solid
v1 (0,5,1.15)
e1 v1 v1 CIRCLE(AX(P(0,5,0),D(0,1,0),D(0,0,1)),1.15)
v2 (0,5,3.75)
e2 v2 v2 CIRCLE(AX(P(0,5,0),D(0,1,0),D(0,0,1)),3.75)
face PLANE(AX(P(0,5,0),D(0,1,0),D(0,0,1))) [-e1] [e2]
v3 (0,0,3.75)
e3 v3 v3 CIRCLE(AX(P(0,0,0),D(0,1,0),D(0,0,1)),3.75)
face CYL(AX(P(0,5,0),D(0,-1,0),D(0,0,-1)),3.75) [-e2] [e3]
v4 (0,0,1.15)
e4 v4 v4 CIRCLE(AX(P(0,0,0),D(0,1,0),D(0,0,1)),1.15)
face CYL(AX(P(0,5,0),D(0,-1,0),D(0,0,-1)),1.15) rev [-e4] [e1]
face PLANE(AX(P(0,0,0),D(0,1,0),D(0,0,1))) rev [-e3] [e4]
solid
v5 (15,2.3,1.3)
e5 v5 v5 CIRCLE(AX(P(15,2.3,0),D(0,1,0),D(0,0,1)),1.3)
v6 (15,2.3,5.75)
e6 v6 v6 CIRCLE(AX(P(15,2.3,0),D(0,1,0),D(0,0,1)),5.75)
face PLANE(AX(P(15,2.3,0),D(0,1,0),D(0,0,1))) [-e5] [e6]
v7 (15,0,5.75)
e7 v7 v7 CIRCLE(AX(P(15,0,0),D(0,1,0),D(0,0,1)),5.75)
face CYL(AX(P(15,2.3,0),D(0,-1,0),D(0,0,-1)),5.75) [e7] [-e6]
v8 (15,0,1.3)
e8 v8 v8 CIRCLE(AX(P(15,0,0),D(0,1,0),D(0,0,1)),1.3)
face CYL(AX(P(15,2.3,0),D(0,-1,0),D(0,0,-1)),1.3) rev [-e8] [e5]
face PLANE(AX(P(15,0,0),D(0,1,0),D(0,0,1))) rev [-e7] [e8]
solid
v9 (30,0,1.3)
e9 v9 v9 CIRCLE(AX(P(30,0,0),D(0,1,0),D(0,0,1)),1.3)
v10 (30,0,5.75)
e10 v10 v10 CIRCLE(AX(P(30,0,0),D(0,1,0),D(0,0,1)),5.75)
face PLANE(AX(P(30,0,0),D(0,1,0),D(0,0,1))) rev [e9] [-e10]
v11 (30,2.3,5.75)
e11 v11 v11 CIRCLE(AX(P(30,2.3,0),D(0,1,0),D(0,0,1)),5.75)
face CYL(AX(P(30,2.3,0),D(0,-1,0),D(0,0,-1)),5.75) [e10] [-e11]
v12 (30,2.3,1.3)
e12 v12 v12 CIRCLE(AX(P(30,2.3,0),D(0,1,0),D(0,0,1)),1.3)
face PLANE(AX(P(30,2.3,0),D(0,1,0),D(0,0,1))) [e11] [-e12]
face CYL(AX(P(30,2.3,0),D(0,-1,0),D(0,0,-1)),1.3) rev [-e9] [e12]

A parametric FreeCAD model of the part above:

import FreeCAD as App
import Part
import Sketcher
Q = App.Units.Quantity

doc = App.newDocument("Part")
params = doc.addObject("Spreadsheet::Sheet", "Params")
for row, (alias, value) in enumerate([
    ("sketch1_diameter", "7.5 mm"),
    ("sketch1_diameter2", "2.3 mm"),
    ("pad1_length", "5 mm"),
    ("sketch2_diameter", "11.5 mm"),
    ("sketch2_diameter2", "2.6 mm"),
    ("pad2_length", "2.3 mm"),
    ("sketch3_diameter", "11.5 mm"),
    ("sketch3_diameter2", "2.6 mm"),
    ("pad3_length", "2.3 mm"),
], start=1):
    params.set(f"A{row}", alias)
    params.set(f"B{row}", "=" + value)
    params.setAlias(f"B{row}", alias)

body = doc.addObject("PartDesign::Body", "Body")

sketch1 = doc.addObject("Sketcher::SketchObject", "Sketch")
body.addObject(sketch1)
sketch1.AttachmentSupport = (doc.XZ_Plane, [""])
sketch1.MapMode = "FlatFace"
sketch1.addGeometry([
    Part.Circle(App.Vector(0, 0, 0), App.Vector(0, 0, 1), 3.75),
    Part.Circle(App.Vector(0, 0, 0), App.Vector(0, 0, 1), 1.15),
], False)
sketch1.addConstraint([
    Sketcher.Constraint("Coincident", 0, 3, -1, 1),
    Sketcher.Constraint("Coincident", 1, 3, -1, 1),
    Sketcher.Constraint("Diameter", 0, Q("7.5 mm")),
    Sketcher.Constraint("Diameter", 1, Q("2.3 mm")),
])
sketch1.setExpression("Constraints[2]", "Params.sketch1_diameter")
sketch1.setExpression("Constraints[3]", "Params.sketch1_diameter2")
pad1 = doc.addObject("PartDesign::Pad", "Pad")
body.addObject(pad1)
pad1.Profile = sketch1
pad1.setExpression("Length", "Params.pad1_length")
pad1.Reversed = True
body2 = doc.addObject("PartDesign::Body", "Body001")

sketch2 = doc.addObject("Sketcher::SketchObject", "Sketch001")
body2.addObject(sketch2)
sketch2.AttachmentSupport = (doc.getObject("XZ_Plane001"), [""])
sketch2.MapMode = "FlatFace"
sketch2.addGeometry([
    Part.Circle(App.Vector(15, 0, 0), App.Vector(0, 0, 1), 5.75),
    Part.Circle(App.Vector(15, 0, 0), App.Vector(0, 0, 1), 1.3),
], False)
sketch2.addConstraint([
    Sketcher.Constraint("Coincident", 1, 3, 0, 3),
    Sketcher.Constraint("PointOnObject", 0, 3, -1),
    Sketcher.Constraint("Diameter", 0, Q("11.5 mm")),
    Sketcher.Constraint("Diameter", 1, Q("2.6 mm")),
    Sketcher.Constraint("DistanceX", -1, 1, 0, 3, Q("15 mm")),
])
sketch2.setExpression("Constraints[2]", "Params.sketch2_diameter")
sketch2.setExpression("Constraints[3]", "Params.sketch2_diameter2")
pad2 = doc.addObject("PartDesign::Pad", "Pad001")
body2.addObject(pad2)
pad2.Profile = sketch2
pad2.setExpression("Length", "Params.pad2_length")
pad2.Reversed = True
body3 = doc.addObject("PartDesign::Body", "Body002")

sketch3 = doc.addObject("Sketcher::SketchObject", "Sketch002")
body3.addObject(sketch3)
sketch3.AttachmentSupport = (doc.getObject("XZ_Plane002"), [""])
sketch3.MapMode = "FlatFace"
sketch3.addGeometry([
    Part.Circle(App.Vector(30, 0, 0), App.Vector(0, 0, 1), 5.75),
    Part.Circle(App.Vector(30, 0, 0), App.Vector(0, 0, 1), 1.3),
], False)
sketch3.addConstraint([
    Sketcher.Constraint("Coincident", 1, 3, 0, 3),
    Sketcher.Constraint("PointOnObject", 0, 3, -1),
    Sketcher.Constraint("Diameter", 0, Q("11.5 mm")),
    Sketcher.Constraint("Diameter", 1, Q("2.6 mm")),
    Sketcher.Constraint("DistanceX", -1, 1, 0, 3, Q("30 mm")),
])
sketch3.setExpression("Constraints[2]", "Params.sketch3_diameter")
sketch3.setExpression("Constraints[3]", "Params.sketch3_diameter2")
pad3 = doc.addObject("PartDesign::Pad", "Pad002")
body3.addObject(pad3)
pad3.Profile = sketch3
pad3.setExpression("Length", "Params.pad3_length")
pad3.Reversed = True

doc.recompute()
